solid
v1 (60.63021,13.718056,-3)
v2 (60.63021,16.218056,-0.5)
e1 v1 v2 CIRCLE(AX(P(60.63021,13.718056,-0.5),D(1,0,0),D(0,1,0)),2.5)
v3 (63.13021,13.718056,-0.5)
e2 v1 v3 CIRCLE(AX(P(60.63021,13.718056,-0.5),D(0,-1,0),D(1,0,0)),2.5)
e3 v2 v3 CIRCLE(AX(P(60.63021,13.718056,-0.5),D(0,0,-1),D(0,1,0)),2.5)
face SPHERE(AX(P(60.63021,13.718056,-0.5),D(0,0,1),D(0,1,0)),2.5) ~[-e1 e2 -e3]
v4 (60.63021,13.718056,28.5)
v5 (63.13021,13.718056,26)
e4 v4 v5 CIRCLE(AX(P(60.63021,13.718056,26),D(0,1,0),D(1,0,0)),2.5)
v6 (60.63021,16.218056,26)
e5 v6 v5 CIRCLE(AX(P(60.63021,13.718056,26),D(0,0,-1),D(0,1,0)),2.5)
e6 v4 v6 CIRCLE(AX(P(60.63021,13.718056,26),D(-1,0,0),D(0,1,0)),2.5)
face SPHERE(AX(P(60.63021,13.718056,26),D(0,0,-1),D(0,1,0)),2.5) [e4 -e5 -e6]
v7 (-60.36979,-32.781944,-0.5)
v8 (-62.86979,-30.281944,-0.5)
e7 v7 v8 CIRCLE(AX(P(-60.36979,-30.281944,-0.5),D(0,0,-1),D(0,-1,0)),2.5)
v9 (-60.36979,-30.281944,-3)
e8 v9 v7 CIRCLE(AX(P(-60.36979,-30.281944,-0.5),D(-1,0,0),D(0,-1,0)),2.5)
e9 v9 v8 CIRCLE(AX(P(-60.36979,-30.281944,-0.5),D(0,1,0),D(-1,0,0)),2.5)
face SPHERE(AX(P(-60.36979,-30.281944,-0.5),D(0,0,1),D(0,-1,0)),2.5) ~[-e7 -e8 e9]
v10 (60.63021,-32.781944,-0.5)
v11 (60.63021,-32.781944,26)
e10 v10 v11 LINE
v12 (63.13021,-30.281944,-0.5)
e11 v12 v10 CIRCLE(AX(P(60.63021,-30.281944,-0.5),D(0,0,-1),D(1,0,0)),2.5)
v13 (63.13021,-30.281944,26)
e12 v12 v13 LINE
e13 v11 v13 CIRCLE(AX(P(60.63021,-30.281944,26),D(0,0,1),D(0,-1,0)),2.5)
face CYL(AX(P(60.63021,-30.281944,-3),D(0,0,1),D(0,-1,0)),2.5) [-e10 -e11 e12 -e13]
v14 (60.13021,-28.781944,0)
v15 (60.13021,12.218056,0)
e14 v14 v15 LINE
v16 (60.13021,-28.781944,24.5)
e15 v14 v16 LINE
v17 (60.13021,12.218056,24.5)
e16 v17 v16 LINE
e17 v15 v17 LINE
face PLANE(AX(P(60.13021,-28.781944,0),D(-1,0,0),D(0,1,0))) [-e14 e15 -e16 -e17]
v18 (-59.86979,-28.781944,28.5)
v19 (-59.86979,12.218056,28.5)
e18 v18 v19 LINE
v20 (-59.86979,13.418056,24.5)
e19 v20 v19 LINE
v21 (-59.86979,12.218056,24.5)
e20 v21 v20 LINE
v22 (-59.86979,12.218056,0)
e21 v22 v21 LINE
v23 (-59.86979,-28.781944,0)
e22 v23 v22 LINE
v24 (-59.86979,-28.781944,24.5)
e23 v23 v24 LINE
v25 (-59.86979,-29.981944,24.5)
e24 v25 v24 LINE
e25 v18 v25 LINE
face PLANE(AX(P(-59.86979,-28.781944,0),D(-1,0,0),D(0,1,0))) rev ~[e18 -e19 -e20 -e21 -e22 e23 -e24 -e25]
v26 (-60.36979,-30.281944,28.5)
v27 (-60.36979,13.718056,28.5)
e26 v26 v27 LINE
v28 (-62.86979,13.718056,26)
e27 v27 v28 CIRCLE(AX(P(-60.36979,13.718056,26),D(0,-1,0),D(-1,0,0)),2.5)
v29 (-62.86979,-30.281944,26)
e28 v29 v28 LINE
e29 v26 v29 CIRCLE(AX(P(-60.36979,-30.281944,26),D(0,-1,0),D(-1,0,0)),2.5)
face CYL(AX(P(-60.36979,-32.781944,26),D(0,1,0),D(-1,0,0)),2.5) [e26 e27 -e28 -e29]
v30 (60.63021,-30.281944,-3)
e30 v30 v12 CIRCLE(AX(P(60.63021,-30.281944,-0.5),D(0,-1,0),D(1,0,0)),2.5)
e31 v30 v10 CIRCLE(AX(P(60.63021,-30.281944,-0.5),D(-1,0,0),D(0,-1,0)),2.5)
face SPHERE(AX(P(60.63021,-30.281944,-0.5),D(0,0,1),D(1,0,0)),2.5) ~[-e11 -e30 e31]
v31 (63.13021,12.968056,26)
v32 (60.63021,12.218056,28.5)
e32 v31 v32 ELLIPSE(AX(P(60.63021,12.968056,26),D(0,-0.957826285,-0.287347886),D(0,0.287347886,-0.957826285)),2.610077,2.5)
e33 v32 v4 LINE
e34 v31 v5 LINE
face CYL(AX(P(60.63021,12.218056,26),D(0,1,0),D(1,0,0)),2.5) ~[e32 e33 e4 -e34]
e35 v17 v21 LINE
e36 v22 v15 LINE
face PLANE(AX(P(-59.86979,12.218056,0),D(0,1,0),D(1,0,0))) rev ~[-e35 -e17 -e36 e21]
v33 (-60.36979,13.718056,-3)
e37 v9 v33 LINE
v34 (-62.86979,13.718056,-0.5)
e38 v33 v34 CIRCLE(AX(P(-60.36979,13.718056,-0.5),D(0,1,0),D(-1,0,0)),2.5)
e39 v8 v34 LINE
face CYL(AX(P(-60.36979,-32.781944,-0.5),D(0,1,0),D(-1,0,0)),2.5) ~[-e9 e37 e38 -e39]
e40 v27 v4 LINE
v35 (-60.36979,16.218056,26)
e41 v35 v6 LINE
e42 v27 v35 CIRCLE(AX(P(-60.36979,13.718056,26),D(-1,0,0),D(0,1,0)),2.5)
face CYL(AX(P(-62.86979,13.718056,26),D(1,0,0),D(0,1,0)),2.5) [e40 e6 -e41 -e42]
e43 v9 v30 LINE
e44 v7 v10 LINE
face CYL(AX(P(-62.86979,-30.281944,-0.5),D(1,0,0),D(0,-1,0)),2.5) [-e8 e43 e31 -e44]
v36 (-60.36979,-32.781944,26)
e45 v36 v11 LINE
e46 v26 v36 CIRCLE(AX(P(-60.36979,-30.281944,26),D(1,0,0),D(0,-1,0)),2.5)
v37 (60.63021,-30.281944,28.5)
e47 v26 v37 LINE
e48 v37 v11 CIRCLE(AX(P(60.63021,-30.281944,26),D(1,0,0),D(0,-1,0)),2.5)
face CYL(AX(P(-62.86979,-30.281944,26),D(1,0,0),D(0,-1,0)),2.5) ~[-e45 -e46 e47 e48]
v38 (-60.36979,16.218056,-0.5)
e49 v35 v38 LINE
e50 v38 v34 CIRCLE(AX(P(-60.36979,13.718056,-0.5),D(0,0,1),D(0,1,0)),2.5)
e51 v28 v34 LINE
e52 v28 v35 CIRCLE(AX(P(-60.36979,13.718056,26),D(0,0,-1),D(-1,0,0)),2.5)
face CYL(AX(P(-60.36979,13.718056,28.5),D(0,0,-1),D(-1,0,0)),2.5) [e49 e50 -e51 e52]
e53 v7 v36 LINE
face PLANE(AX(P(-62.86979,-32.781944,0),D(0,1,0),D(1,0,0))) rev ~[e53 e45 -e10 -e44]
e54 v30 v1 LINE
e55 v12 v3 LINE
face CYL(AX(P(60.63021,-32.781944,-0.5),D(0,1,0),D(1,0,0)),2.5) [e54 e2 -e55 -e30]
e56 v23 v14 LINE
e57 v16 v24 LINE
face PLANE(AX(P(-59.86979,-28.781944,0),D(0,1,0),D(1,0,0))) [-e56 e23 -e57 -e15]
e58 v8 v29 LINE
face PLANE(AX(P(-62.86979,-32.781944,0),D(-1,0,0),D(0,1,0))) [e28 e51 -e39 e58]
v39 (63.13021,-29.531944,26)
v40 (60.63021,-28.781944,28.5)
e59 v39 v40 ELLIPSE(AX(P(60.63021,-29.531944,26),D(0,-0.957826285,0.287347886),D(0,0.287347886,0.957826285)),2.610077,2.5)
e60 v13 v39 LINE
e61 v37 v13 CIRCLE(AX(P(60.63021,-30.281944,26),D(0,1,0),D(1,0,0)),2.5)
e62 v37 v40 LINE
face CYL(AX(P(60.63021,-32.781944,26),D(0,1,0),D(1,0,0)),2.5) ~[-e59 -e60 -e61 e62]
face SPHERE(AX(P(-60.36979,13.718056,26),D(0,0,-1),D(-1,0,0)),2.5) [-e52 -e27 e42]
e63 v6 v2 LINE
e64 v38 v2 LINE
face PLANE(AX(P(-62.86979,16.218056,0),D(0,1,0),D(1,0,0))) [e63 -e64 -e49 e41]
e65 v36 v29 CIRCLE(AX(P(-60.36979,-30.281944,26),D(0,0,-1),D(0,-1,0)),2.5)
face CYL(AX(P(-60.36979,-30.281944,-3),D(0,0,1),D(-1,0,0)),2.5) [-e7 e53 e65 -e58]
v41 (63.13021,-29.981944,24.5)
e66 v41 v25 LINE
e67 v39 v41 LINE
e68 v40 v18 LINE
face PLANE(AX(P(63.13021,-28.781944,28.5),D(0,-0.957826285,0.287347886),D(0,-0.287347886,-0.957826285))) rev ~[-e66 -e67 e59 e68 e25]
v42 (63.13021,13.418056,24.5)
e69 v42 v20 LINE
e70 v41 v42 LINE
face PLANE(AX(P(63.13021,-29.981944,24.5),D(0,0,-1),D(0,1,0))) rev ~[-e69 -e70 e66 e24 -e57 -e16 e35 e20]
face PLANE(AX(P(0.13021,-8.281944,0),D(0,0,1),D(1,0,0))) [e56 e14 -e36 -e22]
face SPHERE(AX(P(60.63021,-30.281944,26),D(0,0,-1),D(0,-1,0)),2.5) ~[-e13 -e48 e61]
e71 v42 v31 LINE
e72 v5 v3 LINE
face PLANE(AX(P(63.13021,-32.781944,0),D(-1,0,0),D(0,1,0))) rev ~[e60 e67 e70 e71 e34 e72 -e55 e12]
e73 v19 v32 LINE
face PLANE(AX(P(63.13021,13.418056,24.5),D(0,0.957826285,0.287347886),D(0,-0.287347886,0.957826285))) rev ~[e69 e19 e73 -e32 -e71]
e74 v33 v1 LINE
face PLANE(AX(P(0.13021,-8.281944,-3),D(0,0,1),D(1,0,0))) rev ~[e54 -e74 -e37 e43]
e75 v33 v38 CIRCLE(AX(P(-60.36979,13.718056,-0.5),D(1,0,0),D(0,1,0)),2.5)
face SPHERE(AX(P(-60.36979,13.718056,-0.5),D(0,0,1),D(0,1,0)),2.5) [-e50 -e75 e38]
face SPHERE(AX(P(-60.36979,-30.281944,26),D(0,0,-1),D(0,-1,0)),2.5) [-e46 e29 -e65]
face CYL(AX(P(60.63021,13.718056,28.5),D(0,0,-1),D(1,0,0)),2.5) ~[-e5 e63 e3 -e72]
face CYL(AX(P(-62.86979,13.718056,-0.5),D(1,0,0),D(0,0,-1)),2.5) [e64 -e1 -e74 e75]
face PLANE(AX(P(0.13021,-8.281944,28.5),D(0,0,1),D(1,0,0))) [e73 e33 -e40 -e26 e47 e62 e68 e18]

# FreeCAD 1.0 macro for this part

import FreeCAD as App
import Part
import Sketcher


def edges_at(feature, points):
    """Names of the edges that pass closest to the given points."""
    edges = feature.Shape.Edges
    near = lambda p: min(range(len(edges)), key=lambda i: edges[i].distToShape(Part.Vertex(*p))[0])
    return sorted({f"Edge{near(p) + 1}" for p in points})


def add_polygon(sketch, points):
    """Adds a closed chain of lines whose ends are joined by coincident constraints."""
    first, n = sketch.GeometryCount, len(points)
    for a, b in zip(points, points[1:] + points[:1]):
        sketch.addGeometry(Part.LineSegment(App.Vector(*a, 0), App.Vector(*b, 0)), False)
    for i in range(n):
        sketch.addConstraint(Sketcher.Constraint("Coincident", first + i, 2, first + (i + 1) % n, 1))

doc = App.newDocument("Part")
body = doc.addObject("PartDesign::Body", "Body")

# Sketch on XY plane
sketch1 = body.newObject("Sketcher::SketchObject", "Sketch")
sketch1.AttachmentSupport = (doc.getObject("XY_Plane"), [""])
sketch1.MapMode = "FlatFace"
add_polygon(sketch1, [(-63, 16), (-63, -33), (63, -33), (63, 16)])  # lines 0-3
sketch1.addConstraint(Sketcher.Constraint("Vertical", 0))
sketch1.addConstraint(Sketcher.Constraint("Horizontal", 1))
sketch1.addConstraint(Sketcher.Constraint("Vertical", 2))
sketch1.addConstraint(Sketcher.Constraint("Horizontal", 3))
sketch1.addConstraint(Sketcher.Constraint("DistanceX", 1, 1, 1, 2, 126.0))
sketch1.addConstraint(Sketcher.Constraint("DistanceY", 0, 2, 0, 1, 49.0))
sketch1.addConstraint(Sketcher.Constraint("DistanceX", 0, 2, -1, 1, 62.86979))
sketch1.addConstraint(Sketcher.Constraint("DistanceY", 0, 2, -1, 1, 32.781944))
pad1 = body.newObject("PartDesign::Pad", "Pad")
pad1.Profile = sketch1
pad1.Length = 3
pad1.Reversed = True

# Sketch on XY plane
sketch2 = body.newObject("Sketcher::SketchObject", "Sketch001")
sketch2.AttachmentSupport = (doc.getObject("XY_Plane"), [""])
sketch2.MapMode = "FlatFace"
add_polygon(sketch2, [(-63, 16), (-63, -33), (63, -33), (63, 16)])  # lines 0-3
add_polygon(sketch2, [(60, -29), (-60, -29), (-60, 12), (60, 12)])  # lines 4-7
sketch2.addConstraint(Sketcher.Constraint("Vertical", 0))
sketch2.addConstraint(Sketcher.Constraint("Horizontal", 1))
sketch2.addConstraint(Sketcher.Constraint("Vertical", 2))
sketch2.addConstraint(Sketcher.Constraint("Horizontal", 3))
sketch2.addConstraint(Sketcher.Constraint("Horizontal", 4))
sketch2.addConstraint(Sketcher.Constraint("Vertical", 5))
sketch2.addConstraint(Sketcher.Constraint("Horizontal", 6))
sketch2.addConstraint(Sketcher.Constraint("Vertical", 7))
sketch2.addConstraint(Sketcher.Constraint("DistanceX", 1, 1, 1, 2, 126.0))
sketch2.addConstraint(Sketcher.Constraint("DistanceX", 4, 2, 4, 1, 120.0))
sketch2.addConstraint(Sketcher.Constraint("DistanceY", 0, 2, 0, 1, 49.0))
sketch2.addConstraint(Sketcher.Constraint("DistanceY", 5, 1, 5, 2, 41.0))
sketch2.addConstraint(Sketcher.Constraint("DistanceX", 0, 2, 4, 2, 3.0))
sketch2.addConstraint(Sketcher.Constraint("DistanceY", 0, 2, 4, 2, 4.0))
sketch2.addConstraint(Sketcher.Constraint("DistanceX", 0, 2, -1, 1, 62.86979))
sketch2.addConstraint(Sketcher.Constraint("DistanceY", 0, 2, -1, 1, 32.781944))
pad2 = body.newObject("PartDesign::Pad", "Pad001")
pad2.Profile = sketch2
pad2.Length = 28.5

# Sketch on YZ plane
sketch3 = body.newObject("Sketcher::SketchObject", "Sketch002")
sketch3.AttachmentSupport = (doc.getObject("YZ_Plane"), [""])
sketch3.MapMode = "FlatFace"
sketch3.AttachmentOffset = App.Placement(App.Vector(0, 0, 63.13021), App.Rotation())
add_polygon(sketch3, [(12.2, 28.5), (-28.8, 28.5), (-30, 24.5), (13.4, 24.5)])  # lines 0-3
sketch3.addConstraint(Sketcher.Constraint("Horizontal", 0))
sketch3.addConstraint(Sketcher.Constraint("Horizontal", 2))
sketch3.addConstraint(Sketcher.Constraint("Equal", 1, 3))
sketch3.addConstraint(Sketcher.Constraint("DistanceX", 0, 2, 0, 1, 41.0))
sketch3.addConstraint(Sketcher.Constraint("DistanceX", 2, 1, 2, 2, 43.4))
sketch3.addConstraint(Sketcher.Constraint("DistanceY", 1, 2, 0, 2, 4.0))
sketch3.addConstraint(Sketcher.Constraint("DistanceY", -1, 1, 0, 2, 28.5))
sketch3.addConstraint(Sketcher.Constraint("DistanceX", 0, 2, -1, 1, 28.781944))
pocket1 = body.newObject("PartDesign::Pocket", "Pocket")
pocket1.Profile = sketch3
pocket1.Length = 123
doc.recompute()

fillet = body.newObject("PartDesign::Fillet", "Fillet")
fillet.Base = (pocket1, edges_at(pocket1, [
    (63.13, -32.782, 12.75),
    (63.13, 16.218, 12.75),
    (-62.87, -32.782, 12.75),
    (-62.87, 16.218, 12.75),
    (0.13, 16.218, -3),
    (63.13, -8.282, -3),
    (0.13, -32.782, -3),
    (-62.87, -8.282, -3),
    (0.13, -32.782, 28.5),
    (-62.87, -8.282, 28.5),
    (0.13, 16.218, 28.5),
    (63.13, 14.218, 28.5),
    (63.13, -30.782, 28.5),
]))
fillet.Radius = 2.5

doc.recompute()
